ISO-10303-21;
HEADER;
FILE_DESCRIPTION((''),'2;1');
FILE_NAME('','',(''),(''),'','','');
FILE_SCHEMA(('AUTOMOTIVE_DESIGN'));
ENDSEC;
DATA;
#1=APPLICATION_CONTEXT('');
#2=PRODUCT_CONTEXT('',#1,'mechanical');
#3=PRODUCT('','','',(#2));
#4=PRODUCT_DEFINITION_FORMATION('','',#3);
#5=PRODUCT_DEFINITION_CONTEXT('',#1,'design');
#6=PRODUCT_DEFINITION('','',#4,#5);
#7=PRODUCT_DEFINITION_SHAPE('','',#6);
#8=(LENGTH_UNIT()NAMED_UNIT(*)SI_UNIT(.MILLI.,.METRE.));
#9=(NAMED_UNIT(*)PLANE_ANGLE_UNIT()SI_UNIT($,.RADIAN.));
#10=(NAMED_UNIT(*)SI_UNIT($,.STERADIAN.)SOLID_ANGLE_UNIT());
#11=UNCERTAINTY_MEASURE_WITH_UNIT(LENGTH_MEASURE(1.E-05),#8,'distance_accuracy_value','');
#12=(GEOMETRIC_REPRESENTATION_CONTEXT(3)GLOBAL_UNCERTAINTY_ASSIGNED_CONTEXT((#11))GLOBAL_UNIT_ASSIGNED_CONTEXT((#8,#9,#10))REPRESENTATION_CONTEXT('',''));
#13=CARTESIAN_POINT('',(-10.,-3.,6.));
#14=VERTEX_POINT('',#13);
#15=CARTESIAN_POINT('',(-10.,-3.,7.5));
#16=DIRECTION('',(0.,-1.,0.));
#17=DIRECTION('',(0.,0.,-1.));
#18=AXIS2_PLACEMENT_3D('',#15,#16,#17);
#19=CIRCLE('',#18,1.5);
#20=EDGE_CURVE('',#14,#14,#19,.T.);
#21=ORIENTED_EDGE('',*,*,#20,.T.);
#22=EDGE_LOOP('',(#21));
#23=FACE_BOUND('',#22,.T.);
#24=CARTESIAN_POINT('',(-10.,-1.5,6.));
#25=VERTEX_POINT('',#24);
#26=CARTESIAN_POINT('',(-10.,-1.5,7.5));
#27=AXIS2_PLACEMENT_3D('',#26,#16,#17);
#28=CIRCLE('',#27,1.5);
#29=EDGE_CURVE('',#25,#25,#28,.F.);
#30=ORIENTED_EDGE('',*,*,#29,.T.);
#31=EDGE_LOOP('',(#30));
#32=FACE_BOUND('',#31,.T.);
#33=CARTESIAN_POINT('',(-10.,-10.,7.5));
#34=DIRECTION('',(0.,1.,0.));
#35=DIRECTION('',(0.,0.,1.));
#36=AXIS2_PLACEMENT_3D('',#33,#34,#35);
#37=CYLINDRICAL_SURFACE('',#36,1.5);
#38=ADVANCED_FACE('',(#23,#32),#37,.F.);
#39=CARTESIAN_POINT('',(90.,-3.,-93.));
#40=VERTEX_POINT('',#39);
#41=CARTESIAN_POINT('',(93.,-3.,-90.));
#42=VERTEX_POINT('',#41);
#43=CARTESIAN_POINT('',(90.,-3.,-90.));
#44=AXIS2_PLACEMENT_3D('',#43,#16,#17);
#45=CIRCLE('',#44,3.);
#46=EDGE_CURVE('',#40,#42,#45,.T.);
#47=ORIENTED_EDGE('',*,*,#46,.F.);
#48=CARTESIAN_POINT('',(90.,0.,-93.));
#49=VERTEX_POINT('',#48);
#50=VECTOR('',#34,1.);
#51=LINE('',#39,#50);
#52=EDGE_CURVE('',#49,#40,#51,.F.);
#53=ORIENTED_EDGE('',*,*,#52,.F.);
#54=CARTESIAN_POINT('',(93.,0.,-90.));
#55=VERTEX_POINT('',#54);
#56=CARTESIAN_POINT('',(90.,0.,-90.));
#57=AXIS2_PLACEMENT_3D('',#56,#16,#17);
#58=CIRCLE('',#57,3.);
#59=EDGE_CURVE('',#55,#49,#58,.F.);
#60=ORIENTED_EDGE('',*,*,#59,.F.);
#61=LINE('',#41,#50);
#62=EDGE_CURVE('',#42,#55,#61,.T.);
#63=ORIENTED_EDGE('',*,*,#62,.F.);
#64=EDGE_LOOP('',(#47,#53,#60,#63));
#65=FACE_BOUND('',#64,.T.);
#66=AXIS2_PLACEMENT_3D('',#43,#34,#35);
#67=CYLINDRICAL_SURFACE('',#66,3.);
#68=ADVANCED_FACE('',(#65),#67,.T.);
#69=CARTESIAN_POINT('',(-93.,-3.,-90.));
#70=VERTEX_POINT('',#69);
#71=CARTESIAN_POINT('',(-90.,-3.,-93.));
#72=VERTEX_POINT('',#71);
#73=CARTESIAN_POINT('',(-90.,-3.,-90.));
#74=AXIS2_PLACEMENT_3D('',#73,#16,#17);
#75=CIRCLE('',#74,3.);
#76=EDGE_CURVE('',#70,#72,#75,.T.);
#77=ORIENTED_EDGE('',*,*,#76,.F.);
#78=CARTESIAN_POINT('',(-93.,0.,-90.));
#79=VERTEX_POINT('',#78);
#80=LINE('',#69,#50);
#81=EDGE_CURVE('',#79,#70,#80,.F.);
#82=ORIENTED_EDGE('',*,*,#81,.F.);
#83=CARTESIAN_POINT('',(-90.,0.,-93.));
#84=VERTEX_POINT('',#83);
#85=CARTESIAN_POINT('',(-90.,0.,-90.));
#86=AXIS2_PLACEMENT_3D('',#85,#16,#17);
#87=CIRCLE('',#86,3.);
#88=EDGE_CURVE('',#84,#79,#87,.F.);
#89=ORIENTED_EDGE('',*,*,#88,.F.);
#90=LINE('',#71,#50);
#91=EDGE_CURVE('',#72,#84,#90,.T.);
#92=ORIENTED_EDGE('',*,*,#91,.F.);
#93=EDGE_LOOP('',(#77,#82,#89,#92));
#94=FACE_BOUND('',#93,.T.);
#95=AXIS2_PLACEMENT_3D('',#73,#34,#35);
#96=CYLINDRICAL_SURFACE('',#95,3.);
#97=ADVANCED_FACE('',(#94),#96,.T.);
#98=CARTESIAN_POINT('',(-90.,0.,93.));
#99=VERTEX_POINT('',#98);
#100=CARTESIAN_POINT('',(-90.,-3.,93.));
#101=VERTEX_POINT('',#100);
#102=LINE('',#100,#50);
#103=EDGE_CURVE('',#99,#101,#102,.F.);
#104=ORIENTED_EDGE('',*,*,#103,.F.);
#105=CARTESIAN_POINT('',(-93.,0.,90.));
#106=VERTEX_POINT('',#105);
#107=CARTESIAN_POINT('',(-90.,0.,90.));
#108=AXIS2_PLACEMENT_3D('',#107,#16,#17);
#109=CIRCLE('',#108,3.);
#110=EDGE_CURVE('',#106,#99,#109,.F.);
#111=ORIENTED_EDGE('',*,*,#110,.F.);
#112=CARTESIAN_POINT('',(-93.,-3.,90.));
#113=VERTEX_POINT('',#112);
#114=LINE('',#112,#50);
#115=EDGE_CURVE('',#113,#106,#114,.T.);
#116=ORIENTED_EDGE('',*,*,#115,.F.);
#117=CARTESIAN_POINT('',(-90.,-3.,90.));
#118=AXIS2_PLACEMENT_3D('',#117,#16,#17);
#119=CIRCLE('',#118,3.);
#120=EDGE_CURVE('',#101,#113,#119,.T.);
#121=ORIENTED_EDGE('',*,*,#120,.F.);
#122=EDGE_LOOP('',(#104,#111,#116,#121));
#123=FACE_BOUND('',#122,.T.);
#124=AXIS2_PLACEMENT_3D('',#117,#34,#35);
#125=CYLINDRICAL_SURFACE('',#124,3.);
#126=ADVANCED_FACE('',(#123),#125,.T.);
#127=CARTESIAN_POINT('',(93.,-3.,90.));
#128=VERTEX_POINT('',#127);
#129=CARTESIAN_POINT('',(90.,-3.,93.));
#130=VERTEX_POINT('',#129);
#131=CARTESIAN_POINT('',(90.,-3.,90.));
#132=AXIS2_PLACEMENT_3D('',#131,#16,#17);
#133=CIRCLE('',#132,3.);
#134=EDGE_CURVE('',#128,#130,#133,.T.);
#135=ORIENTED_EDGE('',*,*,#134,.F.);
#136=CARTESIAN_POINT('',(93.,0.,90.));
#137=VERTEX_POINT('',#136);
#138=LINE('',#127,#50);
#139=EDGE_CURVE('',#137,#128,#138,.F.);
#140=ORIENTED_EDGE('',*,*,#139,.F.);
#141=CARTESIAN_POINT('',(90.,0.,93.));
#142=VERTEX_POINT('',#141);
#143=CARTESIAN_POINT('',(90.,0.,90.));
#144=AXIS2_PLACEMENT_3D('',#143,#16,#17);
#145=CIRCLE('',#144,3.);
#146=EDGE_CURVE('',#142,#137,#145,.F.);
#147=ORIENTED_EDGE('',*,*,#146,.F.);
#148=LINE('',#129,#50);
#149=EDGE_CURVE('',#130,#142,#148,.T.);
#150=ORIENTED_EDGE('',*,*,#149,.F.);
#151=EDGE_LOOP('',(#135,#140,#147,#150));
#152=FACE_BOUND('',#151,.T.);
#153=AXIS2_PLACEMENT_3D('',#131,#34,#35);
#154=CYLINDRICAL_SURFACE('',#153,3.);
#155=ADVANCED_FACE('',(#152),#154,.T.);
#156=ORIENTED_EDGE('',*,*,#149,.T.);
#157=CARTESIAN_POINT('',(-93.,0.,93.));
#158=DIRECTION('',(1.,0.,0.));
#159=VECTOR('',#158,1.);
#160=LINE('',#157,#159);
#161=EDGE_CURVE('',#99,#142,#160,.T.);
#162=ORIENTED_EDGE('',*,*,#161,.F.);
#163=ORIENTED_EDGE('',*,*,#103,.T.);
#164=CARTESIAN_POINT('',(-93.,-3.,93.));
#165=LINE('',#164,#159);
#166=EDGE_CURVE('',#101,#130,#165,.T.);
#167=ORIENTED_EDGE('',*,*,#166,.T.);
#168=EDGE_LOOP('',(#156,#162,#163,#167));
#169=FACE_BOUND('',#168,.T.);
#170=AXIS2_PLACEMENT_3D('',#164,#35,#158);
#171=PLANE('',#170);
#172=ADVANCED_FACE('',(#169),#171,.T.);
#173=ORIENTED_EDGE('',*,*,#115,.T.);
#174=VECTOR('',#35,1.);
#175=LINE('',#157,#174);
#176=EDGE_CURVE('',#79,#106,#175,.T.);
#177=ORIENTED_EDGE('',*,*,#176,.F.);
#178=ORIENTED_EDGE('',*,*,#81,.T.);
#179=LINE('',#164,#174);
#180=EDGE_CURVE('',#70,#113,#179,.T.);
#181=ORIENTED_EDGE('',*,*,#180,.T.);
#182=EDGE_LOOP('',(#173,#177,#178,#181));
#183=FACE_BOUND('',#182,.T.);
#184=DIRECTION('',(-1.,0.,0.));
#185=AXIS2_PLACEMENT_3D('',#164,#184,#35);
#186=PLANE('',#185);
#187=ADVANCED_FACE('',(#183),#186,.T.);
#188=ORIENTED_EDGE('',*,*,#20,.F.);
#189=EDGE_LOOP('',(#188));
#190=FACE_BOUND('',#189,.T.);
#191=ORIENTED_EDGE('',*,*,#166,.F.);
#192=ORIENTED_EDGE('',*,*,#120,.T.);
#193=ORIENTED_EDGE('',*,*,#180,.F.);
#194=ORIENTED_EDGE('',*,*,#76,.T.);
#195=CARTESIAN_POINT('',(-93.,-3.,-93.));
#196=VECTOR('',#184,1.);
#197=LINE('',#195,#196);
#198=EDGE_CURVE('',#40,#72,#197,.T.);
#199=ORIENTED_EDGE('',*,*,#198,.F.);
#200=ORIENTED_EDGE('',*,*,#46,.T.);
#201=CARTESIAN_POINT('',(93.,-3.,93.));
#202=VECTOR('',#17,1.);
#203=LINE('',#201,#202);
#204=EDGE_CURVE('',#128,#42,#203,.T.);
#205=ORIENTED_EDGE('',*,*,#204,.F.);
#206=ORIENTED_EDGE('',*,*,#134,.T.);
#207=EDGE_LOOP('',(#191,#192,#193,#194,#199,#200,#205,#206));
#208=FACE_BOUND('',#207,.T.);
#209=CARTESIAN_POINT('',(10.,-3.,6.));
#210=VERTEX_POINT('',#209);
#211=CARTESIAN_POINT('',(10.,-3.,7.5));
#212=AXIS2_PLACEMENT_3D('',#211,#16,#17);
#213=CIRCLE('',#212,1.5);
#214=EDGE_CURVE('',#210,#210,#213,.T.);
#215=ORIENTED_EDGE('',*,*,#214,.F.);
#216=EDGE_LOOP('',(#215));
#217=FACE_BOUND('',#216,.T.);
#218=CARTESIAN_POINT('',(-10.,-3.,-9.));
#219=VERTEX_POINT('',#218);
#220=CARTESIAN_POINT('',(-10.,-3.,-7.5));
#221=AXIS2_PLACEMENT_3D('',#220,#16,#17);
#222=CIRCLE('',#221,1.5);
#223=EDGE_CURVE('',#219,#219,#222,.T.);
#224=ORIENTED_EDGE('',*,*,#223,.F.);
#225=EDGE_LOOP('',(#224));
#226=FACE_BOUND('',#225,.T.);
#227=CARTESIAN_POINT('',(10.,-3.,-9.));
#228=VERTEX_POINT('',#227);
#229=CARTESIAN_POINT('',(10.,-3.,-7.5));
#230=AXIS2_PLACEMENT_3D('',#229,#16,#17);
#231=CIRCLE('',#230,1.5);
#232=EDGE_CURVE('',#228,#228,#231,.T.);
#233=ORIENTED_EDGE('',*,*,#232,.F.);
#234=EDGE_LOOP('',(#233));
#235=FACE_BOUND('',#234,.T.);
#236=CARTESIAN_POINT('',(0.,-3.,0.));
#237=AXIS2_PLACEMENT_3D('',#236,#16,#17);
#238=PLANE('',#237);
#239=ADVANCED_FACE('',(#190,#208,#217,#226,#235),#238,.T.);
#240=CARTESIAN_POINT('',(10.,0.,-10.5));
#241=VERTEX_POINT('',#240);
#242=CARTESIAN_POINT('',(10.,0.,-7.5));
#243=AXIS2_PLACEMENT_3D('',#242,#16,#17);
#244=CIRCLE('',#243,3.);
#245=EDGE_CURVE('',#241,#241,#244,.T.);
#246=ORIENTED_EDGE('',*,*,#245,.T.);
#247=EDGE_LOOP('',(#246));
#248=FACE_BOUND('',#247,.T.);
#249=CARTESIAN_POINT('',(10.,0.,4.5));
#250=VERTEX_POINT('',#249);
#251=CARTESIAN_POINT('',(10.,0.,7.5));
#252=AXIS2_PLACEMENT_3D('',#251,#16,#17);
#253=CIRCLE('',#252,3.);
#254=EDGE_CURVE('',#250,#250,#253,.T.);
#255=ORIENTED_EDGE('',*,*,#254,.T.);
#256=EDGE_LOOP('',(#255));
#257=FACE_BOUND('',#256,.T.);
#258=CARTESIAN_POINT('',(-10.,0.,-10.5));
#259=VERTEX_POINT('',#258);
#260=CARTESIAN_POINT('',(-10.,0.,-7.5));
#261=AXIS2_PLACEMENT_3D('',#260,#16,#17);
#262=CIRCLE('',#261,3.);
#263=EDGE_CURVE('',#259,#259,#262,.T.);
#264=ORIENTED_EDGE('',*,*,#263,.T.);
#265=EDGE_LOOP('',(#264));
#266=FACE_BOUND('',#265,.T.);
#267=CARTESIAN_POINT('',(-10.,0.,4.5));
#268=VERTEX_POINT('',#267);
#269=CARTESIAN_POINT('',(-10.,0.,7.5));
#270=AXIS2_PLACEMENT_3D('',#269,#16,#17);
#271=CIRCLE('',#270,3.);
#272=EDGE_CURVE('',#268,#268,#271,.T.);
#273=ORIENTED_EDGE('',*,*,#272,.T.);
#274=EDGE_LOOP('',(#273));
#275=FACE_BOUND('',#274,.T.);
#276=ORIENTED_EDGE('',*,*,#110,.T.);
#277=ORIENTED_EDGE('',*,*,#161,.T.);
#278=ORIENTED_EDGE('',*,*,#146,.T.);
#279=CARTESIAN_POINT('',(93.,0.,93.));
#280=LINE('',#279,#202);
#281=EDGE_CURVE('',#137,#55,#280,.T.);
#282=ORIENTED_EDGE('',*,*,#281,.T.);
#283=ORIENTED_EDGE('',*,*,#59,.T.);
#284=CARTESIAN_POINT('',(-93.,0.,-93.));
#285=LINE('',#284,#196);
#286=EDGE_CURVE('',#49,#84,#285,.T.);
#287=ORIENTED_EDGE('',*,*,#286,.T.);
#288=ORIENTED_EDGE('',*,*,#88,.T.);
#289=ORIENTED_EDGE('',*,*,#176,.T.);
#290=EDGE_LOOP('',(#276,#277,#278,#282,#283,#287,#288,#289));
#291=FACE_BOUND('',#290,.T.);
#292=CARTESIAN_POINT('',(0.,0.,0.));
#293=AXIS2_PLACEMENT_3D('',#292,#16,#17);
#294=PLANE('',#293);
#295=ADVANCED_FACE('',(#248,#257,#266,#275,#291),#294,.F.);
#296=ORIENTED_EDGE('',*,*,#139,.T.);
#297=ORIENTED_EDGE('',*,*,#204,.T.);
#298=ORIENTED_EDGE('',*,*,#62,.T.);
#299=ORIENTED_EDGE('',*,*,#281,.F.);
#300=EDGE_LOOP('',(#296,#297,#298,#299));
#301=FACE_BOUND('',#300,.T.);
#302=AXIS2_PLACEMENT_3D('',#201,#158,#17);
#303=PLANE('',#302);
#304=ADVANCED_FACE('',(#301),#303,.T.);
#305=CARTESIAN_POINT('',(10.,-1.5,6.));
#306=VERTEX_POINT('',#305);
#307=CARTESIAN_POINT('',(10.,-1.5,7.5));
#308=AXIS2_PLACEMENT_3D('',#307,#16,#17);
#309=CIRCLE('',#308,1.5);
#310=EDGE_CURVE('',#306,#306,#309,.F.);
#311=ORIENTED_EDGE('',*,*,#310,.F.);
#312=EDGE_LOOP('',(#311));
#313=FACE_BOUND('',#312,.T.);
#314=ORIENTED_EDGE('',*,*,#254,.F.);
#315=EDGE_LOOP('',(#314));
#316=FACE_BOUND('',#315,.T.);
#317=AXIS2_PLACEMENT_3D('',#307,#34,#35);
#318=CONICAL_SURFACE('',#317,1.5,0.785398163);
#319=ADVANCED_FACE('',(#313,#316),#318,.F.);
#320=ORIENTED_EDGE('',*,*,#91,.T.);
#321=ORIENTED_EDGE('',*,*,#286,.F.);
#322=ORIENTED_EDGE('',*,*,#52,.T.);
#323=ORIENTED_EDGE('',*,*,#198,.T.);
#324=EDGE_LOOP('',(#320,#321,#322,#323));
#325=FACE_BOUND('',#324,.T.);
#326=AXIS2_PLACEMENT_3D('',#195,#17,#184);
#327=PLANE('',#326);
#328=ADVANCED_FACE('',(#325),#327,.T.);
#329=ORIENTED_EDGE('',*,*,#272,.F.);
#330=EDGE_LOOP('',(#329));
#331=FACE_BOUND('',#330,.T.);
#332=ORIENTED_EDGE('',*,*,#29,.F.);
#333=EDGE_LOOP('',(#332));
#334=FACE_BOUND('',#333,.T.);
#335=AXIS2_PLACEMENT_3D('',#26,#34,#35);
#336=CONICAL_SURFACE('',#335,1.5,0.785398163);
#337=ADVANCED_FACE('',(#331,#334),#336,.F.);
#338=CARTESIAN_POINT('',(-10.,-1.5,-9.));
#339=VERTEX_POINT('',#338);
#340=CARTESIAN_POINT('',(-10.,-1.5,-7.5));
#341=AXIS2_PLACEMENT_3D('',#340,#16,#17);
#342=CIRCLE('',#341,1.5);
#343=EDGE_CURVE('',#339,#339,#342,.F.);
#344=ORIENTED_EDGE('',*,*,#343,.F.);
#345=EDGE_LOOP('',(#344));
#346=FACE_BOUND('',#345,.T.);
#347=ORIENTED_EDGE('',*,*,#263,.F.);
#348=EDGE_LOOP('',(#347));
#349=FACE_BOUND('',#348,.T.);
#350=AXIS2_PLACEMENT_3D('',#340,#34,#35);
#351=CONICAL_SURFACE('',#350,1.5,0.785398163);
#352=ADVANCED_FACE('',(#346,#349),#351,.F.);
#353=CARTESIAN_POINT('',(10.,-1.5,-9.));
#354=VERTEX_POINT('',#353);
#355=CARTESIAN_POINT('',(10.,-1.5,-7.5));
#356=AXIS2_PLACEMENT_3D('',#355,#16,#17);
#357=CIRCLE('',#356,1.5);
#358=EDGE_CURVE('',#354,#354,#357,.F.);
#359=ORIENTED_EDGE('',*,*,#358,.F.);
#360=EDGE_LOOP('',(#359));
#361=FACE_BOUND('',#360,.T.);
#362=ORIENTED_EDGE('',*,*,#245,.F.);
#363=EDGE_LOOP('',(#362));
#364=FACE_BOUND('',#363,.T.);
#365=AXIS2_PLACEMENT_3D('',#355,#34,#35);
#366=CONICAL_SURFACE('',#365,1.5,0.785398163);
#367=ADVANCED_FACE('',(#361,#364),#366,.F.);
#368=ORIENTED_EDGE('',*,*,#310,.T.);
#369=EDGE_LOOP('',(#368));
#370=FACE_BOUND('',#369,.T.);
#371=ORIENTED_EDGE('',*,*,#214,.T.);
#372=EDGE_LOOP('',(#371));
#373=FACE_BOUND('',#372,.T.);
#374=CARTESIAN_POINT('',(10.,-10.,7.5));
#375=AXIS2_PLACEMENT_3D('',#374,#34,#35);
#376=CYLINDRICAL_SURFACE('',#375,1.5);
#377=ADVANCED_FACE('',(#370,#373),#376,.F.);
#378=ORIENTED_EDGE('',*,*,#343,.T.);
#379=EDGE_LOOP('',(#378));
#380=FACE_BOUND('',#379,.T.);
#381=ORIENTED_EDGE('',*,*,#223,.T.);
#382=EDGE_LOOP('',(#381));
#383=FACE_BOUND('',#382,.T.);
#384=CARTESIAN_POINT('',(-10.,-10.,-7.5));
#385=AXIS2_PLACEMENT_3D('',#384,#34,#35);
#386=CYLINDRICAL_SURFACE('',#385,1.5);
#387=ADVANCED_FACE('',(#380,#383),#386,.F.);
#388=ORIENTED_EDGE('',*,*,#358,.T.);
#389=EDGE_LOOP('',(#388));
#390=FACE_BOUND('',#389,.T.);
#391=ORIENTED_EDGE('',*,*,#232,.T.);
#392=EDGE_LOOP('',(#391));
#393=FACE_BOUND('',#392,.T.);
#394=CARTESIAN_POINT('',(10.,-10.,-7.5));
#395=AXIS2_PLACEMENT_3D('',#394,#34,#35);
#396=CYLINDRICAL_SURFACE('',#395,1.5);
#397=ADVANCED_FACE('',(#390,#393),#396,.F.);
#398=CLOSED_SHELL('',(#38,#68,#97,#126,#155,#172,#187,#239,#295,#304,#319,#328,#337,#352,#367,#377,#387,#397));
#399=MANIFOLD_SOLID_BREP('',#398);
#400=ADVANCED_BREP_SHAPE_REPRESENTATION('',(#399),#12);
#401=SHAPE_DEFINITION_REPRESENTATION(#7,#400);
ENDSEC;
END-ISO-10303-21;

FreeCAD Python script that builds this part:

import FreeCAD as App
import Part
import Sketcher

V = App.Vector
Q = App.Units.Quantity


def edges_at(feature, points):
    """Names of the edges that pass closest to the given points."""
    edges = feature.Shape.Edges
    near = lambda p: min(range(len(edges)), key=lambda i: edges[i].distToShape(Part.Vertex(*p))[0])
    return sorted({f"Edge{near(p) + 1}" for p in points})

doc = App.newDocument("Part")
body = doc.addObject("PartDesign::Body", "Body")

sketch1 = body.newObject("Sketcher::SketchObject", "Sketch")
sketch1.AttachmentSupport = (doc.getObject("XZ_Plane"), [""])
sketch1.MapMode = "FlatFace"
sketch1.addGeometry([
    Part.LineSegment(V(-93, -93, 0), V(-93, 93, 0)),
    Part.LineSegment(V(-93, 93, 0), V(93, 93, 0)),
    Part.LineSegment(V(93, 93, 0), V(93, -93, 0)),
    Part.LineSegment(V(93, -93, 0), V(-93, -93, 0)),
], False)
sketch1.addConstraint([
    Sketcher.Constraint("Coincident", 0, 2, 1, 1),
    Sketcher.Constraint("Coincident", 1, 2, 2, 1),
    Sketcher.Constraint("Coincident", 2, 2, 3, 1),
    Sketcher.Constraint("Coincident", 3, 2, 0, 1),
    Sketcher.Constraint("Vertical", 0),
    Sketcher.Constraint("Horizontal", 1),
    Sketcher.Constraint("Vertical", 2),
    Sketcher.Constraint("Horizontal", 3),
    Sketcher.Constraint("Symmetric", 0, 2, 2, 2, -1, 1),
    Sketcher.Constraint("Equal", 3, 0),
    Sketcher.Constraint("DistanceX", 1, 1, 1, 2, Q("186 mm")),
])
pad1 = body.newObject("PartDesign::Pad", "Pad")
pad1.Profile = sketch1
pad1.Length = 3
doc.recompute()

fillet = body.newObject("PartDesign::Fillet", "Fillet")
fillet.Base = (pad1, edges_at(pad1, [
    (93, -1.5, 93),
    (-93, -1.5, 93),
    (-93, -1.5, -93),
    (93, -1.5, -93),
]))
fillet.Radius = 3

sketch2 = body.newObject("Sketcher::SketchObject", "Sketch001")
sketch2.AttachmentSupport = (doc.getObject("XZ_Plane"), [""])
sketch2.MapMode = "FlatFace"
sketch2.addGeometry([
    Part.Circle(V(-10, 7.5, 0), V(0, 0, 1), 1.5),
    Part.Circle(V(-10, -7.5, 0), V(0, 0, 1), 1.5),
    Part.Circle(V(10, -7.5, 0), V(0, 0, 1), 1.5),
    Part.Circle(V(10, 7.5, 0), V(0, 0, 1), 1.5),
], False)
sketch2.addConstraint([
    Sketcher.Constraint("Equal", 0, 1),
    Sketcher.Constraint("Equal", 1, 2),
    Sketcher.Constraint("Equal", 2, 3),
    Sketcher.Constraint("Symmetric", 0, 3, 2, 3, -1, 1),
    Sketcher.Constraint("Symmetric", 1, 3, 3, 3, -1, 1),
    Sketcher.Constraint("Symmetric", 1, 3, 2, 3, -2),
    Sketcher.Constraint("Diameter", 0, Q("3 mm")),
    Sketcher.Constraint("DistanceX", 0, 3, -1, 1, Q("10 mm")),
    Sketcher.Constraint("DistanceY", 1, 3, 0, 3, Q("15 mm")),
])
pocket1 = body.newObject("PartDesign::Pocket", "Pocket")
pocket1.Profile = sketch2
pocket1.Length = 10
pocket1.Reversed = True
doc.recompute()

chamfer = body.newObject("PartDesign::Chamfer", "Chamfer")
chamfer.Base = (pocket1, edges_at(pocket1, [
    (-10, 0, 6),
    (-10, 0, -9),
    (10, 0, -9),
    (10, 0, 6),
]))
chamfer.Size = 1.5

doc.recompute()
